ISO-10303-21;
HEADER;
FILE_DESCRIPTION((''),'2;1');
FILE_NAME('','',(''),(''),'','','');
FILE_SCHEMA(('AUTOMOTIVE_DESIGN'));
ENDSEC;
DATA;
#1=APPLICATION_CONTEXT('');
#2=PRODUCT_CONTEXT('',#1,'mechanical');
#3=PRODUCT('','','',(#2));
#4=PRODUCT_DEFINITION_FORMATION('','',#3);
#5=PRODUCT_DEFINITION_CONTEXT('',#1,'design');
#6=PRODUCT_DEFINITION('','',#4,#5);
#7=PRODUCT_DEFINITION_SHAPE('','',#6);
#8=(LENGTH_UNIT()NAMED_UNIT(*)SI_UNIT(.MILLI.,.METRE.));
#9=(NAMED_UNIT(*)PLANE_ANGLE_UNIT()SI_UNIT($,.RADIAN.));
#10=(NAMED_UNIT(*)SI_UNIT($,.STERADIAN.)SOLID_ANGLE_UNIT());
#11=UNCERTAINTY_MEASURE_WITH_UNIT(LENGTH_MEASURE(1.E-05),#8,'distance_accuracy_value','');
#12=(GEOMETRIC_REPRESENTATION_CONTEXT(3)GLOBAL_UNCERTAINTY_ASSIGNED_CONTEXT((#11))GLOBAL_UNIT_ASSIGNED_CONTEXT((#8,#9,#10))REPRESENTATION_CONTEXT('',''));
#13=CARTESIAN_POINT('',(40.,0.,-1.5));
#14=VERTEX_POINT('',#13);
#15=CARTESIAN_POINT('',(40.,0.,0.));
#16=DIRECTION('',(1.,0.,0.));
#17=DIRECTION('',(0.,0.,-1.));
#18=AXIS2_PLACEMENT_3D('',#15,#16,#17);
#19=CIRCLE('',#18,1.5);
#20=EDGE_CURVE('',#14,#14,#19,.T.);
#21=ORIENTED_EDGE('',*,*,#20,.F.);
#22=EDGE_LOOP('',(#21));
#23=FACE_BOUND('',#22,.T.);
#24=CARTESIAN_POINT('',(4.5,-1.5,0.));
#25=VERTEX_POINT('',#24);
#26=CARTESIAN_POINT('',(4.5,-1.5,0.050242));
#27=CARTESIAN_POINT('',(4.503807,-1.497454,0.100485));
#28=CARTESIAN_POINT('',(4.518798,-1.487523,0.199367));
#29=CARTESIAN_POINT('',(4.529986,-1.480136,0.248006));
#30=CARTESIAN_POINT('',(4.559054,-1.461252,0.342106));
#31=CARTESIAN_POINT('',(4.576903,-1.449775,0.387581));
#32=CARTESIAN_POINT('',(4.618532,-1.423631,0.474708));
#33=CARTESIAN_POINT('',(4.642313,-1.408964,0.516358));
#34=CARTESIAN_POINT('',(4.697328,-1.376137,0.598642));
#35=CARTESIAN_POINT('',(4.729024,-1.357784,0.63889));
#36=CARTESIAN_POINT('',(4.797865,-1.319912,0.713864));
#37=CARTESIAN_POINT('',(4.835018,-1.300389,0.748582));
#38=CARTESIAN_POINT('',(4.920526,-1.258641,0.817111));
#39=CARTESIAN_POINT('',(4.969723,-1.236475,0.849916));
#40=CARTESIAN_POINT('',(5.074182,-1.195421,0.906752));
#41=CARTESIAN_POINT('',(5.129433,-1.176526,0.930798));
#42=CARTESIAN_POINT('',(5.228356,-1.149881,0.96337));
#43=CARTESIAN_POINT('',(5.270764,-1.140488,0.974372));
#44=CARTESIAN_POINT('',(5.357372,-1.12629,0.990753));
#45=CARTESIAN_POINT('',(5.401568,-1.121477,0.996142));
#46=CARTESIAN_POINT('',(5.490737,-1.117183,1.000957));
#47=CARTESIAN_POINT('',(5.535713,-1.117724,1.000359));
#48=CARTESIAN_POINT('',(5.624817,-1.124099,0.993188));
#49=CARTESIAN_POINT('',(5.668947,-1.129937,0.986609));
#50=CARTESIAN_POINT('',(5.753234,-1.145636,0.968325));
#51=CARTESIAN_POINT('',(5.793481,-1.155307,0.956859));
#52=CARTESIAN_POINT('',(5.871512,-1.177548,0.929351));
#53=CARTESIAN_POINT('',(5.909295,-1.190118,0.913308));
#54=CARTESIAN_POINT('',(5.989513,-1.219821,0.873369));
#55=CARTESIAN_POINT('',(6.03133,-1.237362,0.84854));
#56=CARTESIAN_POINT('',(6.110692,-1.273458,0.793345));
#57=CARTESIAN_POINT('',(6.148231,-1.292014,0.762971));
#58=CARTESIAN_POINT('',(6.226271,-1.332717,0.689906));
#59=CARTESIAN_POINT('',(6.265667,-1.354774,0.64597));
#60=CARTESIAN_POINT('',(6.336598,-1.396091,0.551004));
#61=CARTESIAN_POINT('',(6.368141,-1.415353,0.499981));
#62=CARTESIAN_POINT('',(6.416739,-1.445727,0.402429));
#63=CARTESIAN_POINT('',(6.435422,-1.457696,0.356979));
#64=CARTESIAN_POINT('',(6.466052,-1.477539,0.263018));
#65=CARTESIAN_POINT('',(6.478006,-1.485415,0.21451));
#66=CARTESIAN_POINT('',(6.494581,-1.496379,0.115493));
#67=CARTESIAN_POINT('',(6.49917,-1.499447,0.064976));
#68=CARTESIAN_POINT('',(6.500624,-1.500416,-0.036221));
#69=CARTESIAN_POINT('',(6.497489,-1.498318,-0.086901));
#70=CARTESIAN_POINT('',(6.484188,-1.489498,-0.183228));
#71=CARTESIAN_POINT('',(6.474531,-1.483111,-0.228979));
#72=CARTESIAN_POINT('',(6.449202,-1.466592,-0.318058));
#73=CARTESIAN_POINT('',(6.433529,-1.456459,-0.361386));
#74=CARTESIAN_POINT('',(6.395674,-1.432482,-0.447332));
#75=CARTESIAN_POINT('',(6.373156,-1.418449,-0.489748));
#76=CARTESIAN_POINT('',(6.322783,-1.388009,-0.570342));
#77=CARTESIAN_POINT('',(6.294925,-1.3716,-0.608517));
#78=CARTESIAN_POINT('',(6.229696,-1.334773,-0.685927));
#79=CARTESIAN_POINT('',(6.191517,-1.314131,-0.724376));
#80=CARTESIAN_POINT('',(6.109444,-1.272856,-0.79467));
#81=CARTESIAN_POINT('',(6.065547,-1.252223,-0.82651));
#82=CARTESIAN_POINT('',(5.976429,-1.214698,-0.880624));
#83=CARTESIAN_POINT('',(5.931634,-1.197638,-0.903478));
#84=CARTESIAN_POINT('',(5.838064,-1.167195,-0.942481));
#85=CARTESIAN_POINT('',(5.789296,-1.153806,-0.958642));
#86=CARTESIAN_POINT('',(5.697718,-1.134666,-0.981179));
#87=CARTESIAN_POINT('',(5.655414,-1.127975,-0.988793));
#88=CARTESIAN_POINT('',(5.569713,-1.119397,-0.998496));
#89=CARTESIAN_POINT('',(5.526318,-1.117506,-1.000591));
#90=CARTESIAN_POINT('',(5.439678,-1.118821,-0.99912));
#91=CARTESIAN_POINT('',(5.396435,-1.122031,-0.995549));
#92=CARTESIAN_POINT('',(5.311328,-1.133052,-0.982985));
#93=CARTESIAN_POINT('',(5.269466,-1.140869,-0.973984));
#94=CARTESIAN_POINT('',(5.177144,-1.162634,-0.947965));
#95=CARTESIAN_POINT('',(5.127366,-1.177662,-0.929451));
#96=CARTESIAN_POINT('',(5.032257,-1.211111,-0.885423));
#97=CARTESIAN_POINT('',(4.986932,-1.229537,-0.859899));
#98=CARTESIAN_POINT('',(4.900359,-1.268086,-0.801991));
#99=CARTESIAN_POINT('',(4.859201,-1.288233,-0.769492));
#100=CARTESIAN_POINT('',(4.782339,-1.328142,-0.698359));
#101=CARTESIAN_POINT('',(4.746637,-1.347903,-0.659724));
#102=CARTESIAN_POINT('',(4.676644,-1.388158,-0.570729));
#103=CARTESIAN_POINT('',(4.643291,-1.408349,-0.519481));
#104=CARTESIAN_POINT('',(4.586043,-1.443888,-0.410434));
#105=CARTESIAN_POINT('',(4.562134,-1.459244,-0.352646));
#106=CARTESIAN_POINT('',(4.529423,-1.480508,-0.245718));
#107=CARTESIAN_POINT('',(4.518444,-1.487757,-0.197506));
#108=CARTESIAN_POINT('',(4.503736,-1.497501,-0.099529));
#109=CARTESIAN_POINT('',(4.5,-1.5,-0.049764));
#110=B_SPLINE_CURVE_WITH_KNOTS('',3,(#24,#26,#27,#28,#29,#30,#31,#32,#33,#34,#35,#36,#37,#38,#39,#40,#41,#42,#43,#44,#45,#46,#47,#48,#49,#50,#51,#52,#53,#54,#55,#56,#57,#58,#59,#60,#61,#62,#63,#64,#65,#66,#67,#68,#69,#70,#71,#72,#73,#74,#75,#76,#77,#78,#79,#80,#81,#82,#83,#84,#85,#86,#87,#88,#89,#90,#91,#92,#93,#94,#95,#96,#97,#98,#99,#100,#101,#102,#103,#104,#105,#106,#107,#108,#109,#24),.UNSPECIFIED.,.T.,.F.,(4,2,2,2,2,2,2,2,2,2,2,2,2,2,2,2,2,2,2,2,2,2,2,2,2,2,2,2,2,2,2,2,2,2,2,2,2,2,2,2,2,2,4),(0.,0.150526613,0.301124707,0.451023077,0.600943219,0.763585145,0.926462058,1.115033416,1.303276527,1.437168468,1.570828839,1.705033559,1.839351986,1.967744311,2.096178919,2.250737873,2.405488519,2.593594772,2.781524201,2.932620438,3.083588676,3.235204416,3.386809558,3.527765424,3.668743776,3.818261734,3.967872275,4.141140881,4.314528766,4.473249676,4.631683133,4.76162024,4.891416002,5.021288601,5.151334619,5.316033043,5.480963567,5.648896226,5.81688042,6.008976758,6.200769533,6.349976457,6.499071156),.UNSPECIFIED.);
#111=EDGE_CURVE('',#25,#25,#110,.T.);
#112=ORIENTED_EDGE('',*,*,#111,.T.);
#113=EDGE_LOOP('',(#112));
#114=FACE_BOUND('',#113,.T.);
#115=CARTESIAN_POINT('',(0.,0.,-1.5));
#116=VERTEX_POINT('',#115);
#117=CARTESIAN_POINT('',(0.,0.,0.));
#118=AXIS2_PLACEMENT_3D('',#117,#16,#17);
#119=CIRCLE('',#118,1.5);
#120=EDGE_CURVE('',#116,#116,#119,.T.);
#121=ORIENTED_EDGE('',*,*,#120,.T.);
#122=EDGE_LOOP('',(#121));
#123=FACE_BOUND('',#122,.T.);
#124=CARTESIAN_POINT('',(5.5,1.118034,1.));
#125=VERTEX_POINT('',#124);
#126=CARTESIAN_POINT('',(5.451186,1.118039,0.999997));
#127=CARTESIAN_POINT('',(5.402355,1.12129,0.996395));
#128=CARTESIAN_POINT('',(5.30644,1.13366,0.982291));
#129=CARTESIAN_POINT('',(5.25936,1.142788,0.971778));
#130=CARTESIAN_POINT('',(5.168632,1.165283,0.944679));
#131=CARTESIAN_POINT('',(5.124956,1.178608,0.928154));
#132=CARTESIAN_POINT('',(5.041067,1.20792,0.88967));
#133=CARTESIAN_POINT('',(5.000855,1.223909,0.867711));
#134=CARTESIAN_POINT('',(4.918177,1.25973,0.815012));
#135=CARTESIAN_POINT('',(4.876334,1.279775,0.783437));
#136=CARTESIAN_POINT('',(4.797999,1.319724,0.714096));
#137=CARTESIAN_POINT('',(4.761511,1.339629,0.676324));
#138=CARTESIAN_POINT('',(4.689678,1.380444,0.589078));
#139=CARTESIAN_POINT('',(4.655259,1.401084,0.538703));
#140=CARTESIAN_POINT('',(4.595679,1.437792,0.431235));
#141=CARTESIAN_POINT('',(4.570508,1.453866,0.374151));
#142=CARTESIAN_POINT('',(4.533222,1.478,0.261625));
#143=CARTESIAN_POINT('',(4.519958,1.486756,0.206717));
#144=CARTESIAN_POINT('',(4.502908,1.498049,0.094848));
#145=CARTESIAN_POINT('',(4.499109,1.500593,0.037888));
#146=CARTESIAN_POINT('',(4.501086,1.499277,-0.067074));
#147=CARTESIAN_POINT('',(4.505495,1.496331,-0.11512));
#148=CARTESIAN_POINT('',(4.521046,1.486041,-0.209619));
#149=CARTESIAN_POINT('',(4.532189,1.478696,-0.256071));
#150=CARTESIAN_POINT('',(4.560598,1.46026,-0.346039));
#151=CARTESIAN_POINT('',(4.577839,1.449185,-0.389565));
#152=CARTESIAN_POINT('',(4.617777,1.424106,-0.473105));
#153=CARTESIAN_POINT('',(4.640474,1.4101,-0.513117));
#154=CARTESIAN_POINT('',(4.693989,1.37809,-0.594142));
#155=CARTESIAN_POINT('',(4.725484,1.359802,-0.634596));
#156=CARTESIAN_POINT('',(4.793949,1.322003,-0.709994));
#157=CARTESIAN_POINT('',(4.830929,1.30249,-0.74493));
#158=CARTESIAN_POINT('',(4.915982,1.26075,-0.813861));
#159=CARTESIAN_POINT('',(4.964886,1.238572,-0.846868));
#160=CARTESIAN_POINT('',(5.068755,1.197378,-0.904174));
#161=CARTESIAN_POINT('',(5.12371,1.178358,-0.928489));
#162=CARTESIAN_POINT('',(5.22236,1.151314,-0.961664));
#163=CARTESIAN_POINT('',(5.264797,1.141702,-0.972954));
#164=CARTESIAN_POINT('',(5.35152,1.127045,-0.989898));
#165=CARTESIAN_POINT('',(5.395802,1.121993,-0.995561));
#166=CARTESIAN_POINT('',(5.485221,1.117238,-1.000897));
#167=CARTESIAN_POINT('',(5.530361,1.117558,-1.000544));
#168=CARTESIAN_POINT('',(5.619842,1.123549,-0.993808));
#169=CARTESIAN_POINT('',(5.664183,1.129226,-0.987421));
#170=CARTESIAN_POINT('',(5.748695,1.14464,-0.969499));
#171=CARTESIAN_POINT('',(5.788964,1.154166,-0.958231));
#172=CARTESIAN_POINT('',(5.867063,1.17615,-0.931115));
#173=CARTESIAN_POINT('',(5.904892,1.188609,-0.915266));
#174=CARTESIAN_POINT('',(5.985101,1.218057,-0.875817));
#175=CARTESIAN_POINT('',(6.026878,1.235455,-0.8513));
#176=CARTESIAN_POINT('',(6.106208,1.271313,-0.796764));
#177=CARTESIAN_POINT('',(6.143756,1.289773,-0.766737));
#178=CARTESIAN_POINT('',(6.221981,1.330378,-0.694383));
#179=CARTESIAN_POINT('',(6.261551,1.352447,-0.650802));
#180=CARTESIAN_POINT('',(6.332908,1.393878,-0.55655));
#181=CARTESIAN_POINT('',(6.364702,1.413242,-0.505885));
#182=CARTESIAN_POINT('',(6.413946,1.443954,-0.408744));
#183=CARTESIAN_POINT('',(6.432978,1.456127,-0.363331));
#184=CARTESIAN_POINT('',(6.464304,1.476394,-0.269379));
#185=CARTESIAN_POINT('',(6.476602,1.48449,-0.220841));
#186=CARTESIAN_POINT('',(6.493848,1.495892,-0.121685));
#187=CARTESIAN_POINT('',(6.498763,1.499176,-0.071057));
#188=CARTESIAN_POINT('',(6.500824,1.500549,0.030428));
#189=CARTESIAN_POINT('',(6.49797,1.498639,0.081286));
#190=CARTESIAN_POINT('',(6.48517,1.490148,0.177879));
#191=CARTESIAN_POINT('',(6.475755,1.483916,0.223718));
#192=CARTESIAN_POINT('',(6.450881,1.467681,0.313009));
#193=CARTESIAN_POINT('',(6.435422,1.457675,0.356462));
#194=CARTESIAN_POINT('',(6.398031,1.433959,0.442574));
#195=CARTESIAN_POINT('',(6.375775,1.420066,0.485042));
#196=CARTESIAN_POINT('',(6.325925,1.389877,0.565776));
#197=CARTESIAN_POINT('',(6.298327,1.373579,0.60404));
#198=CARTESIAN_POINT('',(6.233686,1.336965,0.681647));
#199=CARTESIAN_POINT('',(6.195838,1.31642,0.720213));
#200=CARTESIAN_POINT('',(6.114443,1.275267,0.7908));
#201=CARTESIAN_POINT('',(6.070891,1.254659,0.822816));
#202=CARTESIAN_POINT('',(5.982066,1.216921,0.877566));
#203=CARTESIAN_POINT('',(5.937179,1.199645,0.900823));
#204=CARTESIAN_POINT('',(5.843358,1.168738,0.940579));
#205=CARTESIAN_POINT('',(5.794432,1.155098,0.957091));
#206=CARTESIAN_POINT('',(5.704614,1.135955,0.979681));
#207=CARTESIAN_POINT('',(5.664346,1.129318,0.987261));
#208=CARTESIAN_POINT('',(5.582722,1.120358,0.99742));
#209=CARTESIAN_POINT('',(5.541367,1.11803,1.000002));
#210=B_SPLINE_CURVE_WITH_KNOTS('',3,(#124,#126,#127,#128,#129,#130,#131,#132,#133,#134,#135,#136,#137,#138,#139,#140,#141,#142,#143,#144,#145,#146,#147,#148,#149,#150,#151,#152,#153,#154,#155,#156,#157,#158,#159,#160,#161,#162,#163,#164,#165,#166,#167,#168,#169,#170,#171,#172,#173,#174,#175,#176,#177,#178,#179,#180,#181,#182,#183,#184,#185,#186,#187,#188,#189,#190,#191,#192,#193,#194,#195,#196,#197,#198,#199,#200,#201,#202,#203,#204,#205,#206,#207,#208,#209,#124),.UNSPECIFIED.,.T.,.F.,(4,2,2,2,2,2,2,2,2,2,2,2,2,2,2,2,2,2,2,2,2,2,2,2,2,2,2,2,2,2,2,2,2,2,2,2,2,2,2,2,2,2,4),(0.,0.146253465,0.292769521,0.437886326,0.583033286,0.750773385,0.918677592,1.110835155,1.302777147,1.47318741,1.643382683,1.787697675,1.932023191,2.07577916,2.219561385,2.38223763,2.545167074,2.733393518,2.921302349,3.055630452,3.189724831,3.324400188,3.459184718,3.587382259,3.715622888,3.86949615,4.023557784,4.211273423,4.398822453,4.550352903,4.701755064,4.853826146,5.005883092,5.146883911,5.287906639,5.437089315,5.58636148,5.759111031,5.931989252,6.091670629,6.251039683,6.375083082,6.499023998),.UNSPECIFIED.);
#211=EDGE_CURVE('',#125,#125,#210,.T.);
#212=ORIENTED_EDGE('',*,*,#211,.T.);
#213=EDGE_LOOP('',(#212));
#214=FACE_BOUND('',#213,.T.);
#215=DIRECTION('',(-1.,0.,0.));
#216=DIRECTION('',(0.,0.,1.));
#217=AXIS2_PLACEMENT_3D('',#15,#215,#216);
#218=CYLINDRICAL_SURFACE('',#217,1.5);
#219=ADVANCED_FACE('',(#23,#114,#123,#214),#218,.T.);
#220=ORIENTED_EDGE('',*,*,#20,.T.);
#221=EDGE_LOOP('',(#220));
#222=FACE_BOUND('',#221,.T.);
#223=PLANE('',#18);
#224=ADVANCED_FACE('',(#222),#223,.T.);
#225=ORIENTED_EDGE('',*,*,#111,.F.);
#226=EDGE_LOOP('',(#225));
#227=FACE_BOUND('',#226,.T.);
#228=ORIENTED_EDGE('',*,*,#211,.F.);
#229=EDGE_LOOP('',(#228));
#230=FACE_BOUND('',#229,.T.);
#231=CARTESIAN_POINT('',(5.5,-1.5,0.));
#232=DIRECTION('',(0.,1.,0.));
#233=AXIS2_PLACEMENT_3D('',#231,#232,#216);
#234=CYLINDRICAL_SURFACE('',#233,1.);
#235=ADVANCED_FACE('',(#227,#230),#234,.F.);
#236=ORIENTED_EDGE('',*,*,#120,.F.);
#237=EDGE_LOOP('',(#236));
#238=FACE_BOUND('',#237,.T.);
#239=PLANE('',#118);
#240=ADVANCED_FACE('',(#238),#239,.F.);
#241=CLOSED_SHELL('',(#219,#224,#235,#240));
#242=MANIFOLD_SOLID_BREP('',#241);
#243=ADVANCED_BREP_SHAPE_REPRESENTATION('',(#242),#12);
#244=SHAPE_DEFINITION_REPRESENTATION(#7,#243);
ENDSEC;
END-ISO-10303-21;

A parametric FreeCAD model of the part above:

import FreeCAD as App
import Part
import Sketcher

V = App.Vector

doc = App.newDocument("Part")
body = doc.addObject("PartDesign::Body", "Body")

sketch1 = body.newObject("Sketcher::SketchObject", "Sketch")
sketch1.AttachmentSupport = (doc.getObject("YZ_Plane"), [""])
sketch1.MapMode = "FlatFace"
sketch1.addGeometry(Part.Circle(V(0, 0, 0), V(0, 0, 1), 1.5), False)
sketch1.addConstraint([
    Sketcher.Constraint("Coincident", 0, 3, -1, 1),
    Sketcher.Constraint("Diameter", 0, 3.0),
])
pad1 = body.newObject("PartDesign::Pad", "Pad")
pad1.Profile = sketch1
pad1.Length = 40

sketch2 = body.newObject("Sketcher::SketchObject", "Sketch001")
sketch2.AttachmentSupport = (doc.getObject("XZ_Plane"), [""])
sketch2.MapMode = "FlatFace"
sketch2.addGeometry(Part.Circle(V(5.5, 0, 0), V(0, 0, 1), 1), False)
sketch2.addConstraint([
    Sketcher.Constraint("PointOnObject", 0, 3, -1),
    Sketcher.Constraint("Diameter", 0, 2.0),
    Sketcher.Constraint("DistanceX", -1, 1, 0, 3, 5.5),
])
pocket1 = body.newObject("PartDesign::Pocket", "Pocket")
pocket1.Profile = sketch2
pocket1.Type = "ThroughAll"
pocket1.Midplane = True

doc.recompute()
